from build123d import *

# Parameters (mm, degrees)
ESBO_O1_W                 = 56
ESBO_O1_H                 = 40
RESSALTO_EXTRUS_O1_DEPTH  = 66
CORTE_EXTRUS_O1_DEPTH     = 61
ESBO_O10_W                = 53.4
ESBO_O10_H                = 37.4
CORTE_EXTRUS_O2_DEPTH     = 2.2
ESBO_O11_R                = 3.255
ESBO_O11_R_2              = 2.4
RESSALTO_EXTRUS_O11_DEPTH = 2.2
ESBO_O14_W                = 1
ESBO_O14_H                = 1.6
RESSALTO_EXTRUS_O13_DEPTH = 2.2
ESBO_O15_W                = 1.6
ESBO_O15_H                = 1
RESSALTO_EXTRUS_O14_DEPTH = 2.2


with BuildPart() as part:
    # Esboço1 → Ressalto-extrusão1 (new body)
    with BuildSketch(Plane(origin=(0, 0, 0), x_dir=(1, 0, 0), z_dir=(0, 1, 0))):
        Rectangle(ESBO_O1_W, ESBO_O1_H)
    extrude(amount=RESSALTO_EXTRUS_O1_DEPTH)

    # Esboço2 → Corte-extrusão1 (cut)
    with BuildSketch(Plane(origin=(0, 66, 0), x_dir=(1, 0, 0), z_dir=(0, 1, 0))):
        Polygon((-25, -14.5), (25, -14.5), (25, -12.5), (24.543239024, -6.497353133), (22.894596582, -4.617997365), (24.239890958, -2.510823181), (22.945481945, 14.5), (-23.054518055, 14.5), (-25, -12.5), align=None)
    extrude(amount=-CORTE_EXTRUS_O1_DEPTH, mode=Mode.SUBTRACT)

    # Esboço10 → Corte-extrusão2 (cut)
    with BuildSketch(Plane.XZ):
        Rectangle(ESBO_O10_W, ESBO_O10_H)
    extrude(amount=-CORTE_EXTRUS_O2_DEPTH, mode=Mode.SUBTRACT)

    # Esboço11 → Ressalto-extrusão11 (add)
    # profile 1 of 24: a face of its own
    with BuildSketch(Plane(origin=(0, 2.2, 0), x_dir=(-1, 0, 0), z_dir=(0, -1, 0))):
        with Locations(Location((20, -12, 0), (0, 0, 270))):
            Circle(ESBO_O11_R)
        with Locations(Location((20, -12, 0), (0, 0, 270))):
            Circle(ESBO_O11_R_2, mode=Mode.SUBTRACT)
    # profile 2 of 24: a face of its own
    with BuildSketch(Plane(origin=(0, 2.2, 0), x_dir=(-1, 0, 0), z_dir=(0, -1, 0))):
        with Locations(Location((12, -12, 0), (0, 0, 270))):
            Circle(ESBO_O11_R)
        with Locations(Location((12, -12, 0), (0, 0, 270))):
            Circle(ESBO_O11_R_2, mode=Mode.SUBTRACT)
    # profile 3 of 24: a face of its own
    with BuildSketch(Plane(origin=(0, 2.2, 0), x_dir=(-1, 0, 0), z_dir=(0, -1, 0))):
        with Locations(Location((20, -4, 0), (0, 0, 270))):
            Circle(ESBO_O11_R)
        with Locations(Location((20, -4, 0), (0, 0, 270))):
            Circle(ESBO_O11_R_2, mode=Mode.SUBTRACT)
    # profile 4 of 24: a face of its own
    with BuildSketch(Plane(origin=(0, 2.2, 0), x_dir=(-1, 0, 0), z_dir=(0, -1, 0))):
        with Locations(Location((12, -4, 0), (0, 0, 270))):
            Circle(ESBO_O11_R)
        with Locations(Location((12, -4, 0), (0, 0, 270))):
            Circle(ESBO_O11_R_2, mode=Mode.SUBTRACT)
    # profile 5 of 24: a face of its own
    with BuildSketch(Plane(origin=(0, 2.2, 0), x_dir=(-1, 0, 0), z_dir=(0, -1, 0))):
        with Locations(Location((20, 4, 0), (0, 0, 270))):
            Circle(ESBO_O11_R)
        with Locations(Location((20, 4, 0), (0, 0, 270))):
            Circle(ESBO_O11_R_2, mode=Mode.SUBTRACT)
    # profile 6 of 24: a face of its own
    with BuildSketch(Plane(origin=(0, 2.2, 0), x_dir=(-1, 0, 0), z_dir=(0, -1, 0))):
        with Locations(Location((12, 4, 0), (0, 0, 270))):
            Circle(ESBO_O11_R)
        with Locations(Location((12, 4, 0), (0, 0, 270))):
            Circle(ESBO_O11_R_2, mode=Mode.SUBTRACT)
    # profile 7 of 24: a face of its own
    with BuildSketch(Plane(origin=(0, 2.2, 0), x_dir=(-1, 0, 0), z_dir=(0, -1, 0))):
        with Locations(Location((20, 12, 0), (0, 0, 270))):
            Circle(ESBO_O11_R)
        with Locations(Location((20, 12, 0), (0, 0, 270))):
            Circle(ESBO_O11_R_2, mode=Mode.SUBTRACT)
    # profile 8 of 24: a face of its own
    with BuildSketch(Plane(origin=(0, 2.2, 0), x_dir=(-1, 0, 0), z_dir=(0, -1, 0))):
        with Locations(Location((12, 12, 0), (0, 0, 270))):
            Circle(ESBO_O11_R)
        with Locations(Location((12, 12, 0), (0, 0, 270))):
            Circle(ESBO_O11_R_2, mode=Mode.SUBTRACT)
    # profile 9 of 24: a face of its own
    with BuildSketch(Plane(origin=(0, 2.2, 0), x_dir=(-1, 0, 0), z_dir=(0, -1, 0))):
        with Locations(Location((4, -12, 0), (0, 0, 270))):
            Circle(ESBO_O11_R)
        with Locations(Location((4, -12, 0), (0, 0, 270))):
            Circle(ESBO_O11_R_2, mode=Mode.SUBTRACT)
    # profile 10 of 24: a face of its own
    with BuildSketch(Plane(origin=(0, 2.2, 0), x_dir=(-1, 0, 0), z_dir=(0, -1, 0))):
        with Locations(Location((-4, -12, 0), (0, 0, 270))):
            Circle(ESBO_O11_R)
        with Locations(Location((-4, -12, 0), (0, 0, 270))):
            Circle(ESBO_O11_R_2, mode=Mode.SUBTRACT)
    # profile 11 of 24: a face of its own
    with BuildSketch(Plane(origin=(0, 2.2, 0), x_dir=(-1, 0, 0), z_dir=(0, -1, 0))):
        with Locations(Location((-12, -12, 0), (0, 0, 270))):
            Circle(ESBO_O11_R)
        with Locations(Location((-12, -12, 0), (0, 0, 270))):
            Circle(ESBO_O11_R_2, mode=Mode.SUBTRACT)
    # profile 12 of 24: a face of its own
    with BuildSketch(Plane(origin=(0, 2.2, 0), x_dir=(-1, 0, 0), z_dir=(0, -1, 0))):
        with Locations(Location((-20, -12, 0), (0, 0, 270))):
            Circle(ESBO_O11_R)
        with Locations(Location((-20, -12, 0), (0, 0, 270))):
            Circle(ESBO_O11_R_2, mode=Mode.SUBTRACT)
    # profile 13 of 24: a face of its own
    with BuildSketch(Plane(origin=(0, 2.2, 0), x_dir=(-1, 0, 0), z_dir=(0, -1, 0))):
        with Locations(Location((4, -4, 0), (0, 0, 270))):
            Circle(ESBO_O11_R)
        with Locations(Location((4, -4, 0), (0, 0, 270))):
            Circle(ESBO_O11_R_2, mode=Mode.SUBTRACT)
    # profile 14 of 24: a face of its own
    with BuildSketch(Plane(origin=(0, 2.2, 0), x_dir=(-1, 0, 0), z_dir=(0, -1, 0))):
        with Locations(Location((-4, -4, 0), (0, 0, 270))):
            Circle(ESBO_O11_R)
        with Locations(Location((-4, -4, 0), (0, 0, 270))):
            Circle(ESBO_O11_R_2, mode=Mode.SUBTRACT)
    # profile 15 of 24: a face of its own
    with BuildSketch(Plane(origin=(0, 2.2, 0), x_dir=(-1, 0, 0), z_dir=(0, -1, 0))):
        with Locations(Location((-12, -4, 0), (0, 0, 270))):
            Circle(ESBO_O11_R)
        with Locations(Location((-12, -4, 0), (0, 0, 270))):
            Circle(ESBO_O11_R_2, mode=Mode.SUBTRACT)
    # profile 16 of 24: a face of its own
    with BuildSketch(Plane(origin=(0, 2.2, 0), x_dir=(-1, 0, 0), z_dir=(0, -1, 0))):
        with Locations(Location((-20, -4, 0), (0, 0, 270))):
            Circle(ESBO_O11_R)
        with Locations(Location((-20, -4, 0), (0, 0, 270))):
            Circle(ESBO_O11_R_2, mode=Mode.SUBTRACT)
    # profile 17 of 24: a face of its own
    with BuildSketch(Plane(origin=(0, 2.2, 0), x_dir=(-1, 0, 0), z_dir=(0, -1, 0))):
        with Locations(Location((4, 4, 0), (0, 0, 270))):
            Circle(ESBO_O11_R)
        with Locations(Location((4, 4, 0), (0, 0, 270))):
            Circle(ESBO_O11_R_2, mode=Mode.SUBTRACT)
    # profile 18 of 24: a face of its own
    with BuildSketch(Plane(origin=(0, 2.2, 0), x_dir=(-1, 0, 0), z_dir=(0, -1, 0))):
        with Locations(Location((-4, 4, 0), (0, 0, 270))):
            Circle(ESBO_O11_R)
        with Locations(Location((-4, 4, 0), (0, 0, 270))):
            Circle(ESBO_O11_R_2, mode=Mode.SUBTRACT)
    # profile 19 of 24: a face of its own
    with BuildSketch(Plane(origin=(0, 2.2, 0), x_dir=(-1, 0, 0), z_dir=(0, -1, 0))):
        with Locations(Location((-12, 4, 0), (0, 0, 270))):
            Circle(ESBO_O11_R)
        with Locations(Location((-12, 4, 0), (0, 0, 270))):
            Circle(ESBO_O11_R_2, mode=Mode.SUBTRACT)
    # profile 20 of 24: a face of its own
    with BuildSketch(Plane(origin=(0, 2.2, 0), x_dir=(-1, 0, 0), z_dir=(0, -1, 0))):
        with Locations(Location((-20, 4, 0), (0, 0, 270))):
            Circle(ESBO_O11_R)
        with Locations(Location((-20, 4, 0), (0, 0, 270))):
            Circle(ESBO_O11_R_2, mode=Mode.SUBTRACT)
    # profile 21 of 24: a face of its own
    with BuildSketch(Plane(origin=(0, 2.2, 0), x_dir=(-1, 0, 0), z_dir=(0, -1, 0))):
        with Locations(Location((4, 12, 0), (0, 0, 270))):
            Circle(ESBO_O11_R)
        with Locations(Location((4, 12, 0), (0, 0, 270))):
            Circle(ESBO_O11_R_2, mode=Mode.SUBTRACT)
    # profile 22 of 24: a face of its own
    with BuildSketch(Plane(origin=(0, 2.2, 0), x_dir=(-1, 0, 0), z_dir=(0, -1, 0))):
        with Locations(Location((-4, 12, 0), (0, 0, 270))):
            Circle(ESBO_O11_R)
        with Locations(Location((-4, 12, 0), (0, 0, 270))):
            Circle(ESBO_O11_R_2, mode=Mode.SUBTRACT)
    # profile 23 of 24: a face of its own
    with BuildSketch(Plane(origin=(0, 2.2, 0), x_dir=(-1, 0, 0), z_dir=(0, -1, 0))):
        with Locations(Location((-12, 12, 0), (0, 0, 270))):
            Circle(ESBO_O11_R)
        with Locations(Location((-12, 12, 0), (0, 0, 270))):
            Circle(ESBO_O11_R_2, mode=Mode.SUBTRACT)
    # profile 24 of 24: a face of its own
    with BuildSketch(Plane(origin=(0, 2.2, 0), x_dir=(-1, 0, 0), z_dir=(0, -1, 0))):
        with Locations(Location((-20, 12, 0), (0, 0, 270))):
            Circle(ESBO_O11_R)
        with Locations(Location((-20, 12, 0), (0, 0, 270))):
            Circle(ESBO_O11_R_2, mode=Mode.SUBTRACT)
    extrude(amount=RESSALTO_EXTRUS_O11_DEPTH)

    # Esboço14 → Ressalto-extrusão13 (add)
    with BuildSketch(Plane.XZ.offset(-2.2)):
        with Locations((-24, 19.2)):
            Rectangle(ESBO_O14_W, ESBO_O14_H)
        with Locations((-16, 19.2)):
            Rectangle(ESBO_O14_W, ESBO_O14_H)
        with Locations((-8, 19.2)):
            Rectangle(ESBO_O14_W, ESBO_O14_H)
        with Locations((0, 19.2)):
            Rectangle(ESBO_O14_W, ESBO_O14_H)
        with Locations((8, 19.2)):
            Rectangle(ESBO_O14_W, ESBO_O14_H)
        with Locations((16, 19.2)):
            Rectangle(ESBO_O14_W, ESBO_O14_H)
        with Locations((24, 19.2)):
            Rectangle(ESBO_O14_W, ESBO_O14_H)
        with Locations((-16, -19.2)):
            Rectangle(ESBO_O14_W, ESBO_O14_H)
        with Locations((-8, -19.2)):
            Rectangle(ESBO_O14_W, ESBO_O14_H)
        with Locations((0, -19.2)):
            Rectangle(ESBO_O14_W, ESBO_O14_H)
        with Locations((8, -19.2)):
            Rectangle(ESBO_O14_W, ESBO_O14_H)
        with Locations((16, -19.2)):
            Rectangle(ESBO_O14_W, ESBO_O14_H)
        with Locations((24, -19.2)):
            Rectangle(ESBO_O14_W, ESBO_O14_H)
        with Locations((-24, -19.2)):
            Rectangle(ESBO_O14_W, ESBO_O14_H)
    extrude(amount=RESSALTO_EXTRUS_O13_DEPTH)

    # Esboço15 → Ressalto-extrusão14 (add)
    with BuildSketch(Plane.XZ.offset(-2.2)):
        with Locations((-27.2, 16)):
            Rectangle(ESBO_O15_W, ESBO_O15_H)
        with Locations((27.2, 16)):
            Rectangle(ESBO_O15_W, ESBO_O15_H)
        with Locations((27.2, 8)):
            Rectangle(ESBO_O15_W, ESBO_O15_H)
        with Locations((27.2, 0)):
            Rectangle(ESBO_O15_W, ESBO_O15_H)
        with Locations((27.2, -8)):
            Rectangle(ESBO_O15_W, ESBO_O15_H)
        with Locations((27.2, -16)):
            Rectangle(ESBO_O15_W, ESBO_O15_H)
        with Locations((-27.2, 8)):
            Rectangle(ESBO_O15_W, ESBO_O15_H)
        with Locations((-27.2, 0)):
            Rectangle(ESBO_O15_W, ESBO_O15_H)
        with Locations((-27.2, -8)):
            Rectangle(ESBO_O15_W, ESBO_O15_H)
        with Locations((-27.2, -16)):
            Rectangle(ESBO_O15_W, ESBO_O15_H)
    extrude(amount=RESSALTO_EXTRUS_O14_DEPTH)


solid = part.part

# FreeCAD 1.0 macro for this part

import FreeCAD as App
import Part
import Sketcher
Q = App.Units.Quantity

doc = App.newDocument("Part")
body = doc.addObject("PartDesign::Body", "Body")

# Sketch on XZ plane
sketch1 = body.newObject("Sketcher::SketchObject", "Sketch")
sketch1.AttachmentSupport = (doc.getObject("XZ_Plane"), [""])
sketch1.MapMode = "FlatFace"
sketch1.addGeometry([
    Part.LineSegment(App.Vector(-28, -20, 0), App.Vector(-28, 20, 0)),
    Part.LineSegment(App.Vector(-28, 20, 0), App.Vector(28, 20, 0)),
    Part.LineSegment(App.Vector(28, 20, 0), App.Vector(28, -20, 0)),
    Part.LineSegment(App.Vector(28, -20, 0), App.Vector(-28, -20, 0)),
], False)
sketch1.addConstraint([
    Sketcher.Constraint("Coincident", 0, 2, 1, 1),
    Sketcher.Constraint("Coincident", 1, 2, 2, 1),
    Sketcher.Constraint("Coincident", 2, 2, 3, 1),
    Sketcher.Constraint("Coincident", 3, 2, 0, 1),
    Sketcher.Constraint("Vertical", 0),
    Sketcher.Constraint("Horizontal", 1),
    Sketcher.Constraint("Vertical", 2),
    Sketcher.Constraint("Horizontal", 3),
    Sketcher.Constraint("Symmetric", 0, 2, 2, 2, -1, 1),
    Sketcher.Constraint("DistanceX", 1, 1, 1, 2, Q("56 mm")),
    Sketcher.Constraint("DistanceY", 0, 1, 0, 2, Q("40 mm")),
])
pad1 = body.newObject("PartDesign::Pad", "Pad")
pad1.Profile = sketch1
pad1.Length = 66
pad1.Reversed = True

# Sketch on XZ plane
sketch2 = body.newObject("Sketcher::SketchObject", "Sketch001")
sketch2.AttachmentSupport = (doc.getObject("XZ_Plane"), [""])
sketch2.MapMode = "FlatFace"
sketch2.AttachmentOffset = App.Placement(App.Vector(0, 0, -66), App.Rotation())
sketch2.addGeometry([
    Part.LineSegment(App.Vector(-25, 14.5, 0), App.Vector(25, 14.5, 0)),  # 0
    Part.LineSegment(App.Vector(25, 14.5, 0), App.Vector(25, 12.5, 0)),  # 1
    Part.LineSegment(App.Vector(25, 12.5, 0), App.Vector(24.5, 6.5, 0)),  # 2
    Part.LineSegment(App.Vector(24.5, 6.5, 0), App.Vector(22.9, 4.6, 0)),  # 3
    Part.LineSegment(App.Vector(22.9, 4.6, 0), App.Vector(24.2, 2.5, 0)),  # 4
    Part.LineSegment(App.Vector(24.2, 2.5, 0), App.Vector(22.9, -14.5, 0)),  # 5
    Part.LineSegment(App.Vector(22.9, -14.5, 0), App.Vector(-23.1, -14.5, 0)),  # 6
    Part.LineSegment(App.Vector(-23.1, -14.5, 0), App.Vector(-25, 12.5, 0)),  # 7
    Part.LineSegment(App.Vector(-25, 12.5, 0), App.Vector(-25, 14.5, 0)),  # 8
], False)
sketch2.addConstraint([
    Sketcher.Constraint("Coincident", 0, 2, 1, 1),
    Sketcher.Constraint("Coincident", 1, 2, 2, 1),
    Sketcher.Constraint("Coincident", 2, 2, 3, 1),
    Sketcher.Constraint("Coincident", 3, 2, 4, 1),
    Sketcher.Constraint("Coincident", 4, 2, 5, 1),
    Sketcher.Constraint("Coincident", 5, 2, 6, 1),
    Sketcher.Constraint("Coincident", 6, 2, 7, 1),
    Sketcher.Constraint("Coincident", 7, 2, 8, 1),
    Sketcher.Constraint("Coincident", 8, 2, 0, 1),
    Sketcher.Constraint("Horizontal", 0),
    Sketcher.Constraint("Vertical", 1),
    Sketcher.Constraint("Horizontal", 6),
    Sketcher.Constraint("Vertical", 8),
    Sketcher.Constraint("Symmetric", 1, 2, 7, 2, -2),
    Sketcher.Constraint("Parallel", 2, 5),
    Sketcher.Constraint("Equal", 3, 4),
    Sketcher.Constraint("DistanceX", 0, 1, 0, 2, Q("50 mm")),
    Sketcher.Constraint("DistanceX", 6, 2, 6, 1, Q("46 mm")),
    Sketcher.Constraint("DistanceY", 1, 2, 1, 1, Q("2 mm")),
    Sketcher.Constraint("DistanceY", 5, 2, 1, 2, Q("27 mm")),
    Sketcher.Constraint("Distance", 3, Q("2.5 mm")),
    Sketcher.Constraint("DistanceY", -1, 1, 0, 2, Q("14.5 mm")),
    Sketcher.Constraint("Distance", 2, Q("6.02 mm")),
    Sketcher.Constraint("Distance", 5, Q("17.06 mm")),
    Sketcher.Constraint("Distance", 7, Q("27.07 mm")),
    Sketcher.Constraint("DistanceX", -1, 1, 2, 2, Q("24.543239 mm")),
])
pocket1 = body.newObject("PartDesign::Pocket", "Pocket")
pocket1.Profile = sketch2
pocket1.Length = 61
pocket1.Reversed = True

# Sketch on XZ plane
sketch3 = body.newObject("Sketcher::SketchObject", "Sketch002")
sketch3.AttachmentSupport = (doc.getObject("XZ_Plane"), [""])
sketch3.MapMode = "FlatFace"
sketch3.addGeometry([
    Part.LineSegment(App.Vector(-27, 19, 0), App.Vector(-27, -19, 0)),
    Part.LineSegment(App.Vector(-27, -19, 0), App.Vector(27, -19, 0)),
    Part.LineSegment(App.Vector(27, -19, 0), App.Vector(27, 19, 0)),
    Part.LineSegment(App.Vector(27, 19, 0), App.Vector(-27, 19, 0)),
], False)
sketch3.addConstraint([
    Sketcher.Constraint("Coincident", 0, 2, 1, 1),
    Sketcher.Constraint("Coincident", 1, 2, 2, 1),
    Sketcher.Constraint("Coincident", 2, 2, 3, 1),
    Sketcher.Constraint("Coincident", 3, 2, 0, 1),
    Sketcher.Constraint("Vertical", 0),
    Sketcher.Constraint("Horizontal", 1),
    Sketcher.Constraint("Vertical", 2),
    Sketcher.Constraint("Horizontal", 3),
    Sketcher.Constraint("Symmetric", 0, 2, 2, 2, -1, 1),
    Sketcher.Constraint("DistanceX", 1, 1, 1, 2, Q("53.4 mm")),
    Sketcher.Constraint("DistanceY", 0, 2, 0, 1, Q("37.4 mm")),
])
pocket2 = body.newObject("PartDesign::Pocket", "Pocket001")
pocket2.Profile = sketch3
pocket2.Length = 2.2

# Sketch on XZ plane
sketch4 = body.newObject("Sketcher::SketchObject", "Sketch003")
sketch4.AttachmentSupport = (doc.getObject("XZ_Plane"), [""])
sketch4.MapMode = "FlatFace"
sketch4.AttachmentOffset = App.Placement(App.Vector(0, 0, -2.2), App.Rotation())
sketch4.addGeometry([
    Part.Circle(App.Vector(-20, 12, 0), App.Vector(0, 0, 1), 3.3),  # 0
    Part.Circle(App.Vector(-20, 12, 0), App.Vector(0, 0, 1), 2.4),  # 1
    Part.Circle(App.Vector(-12, 12, 0), App.Vector(0, 0, 1), 3.3),  # 2
    Part.Circle(App.Vector(-12, 12, 0), App.Vector(0, 0, 1), 2.4),  # 3
    Part.Circle(App.Vector(-20, 4, 0), App.Vector(0, 0, 1), 3.3),  # 4
    Part.Circle(App.Vector(-20, 4, 0), App.Vector(0, 0, 1), 2.4),  # 5
    Part.Circle(App.Vector(-12, 4, 0), App.Vector(0, 0, 1), 3.3),  # 6
    Part.Circle(App.Vector(-12, 4, 0), App.Vector(0, 0, 1), 2.4),  # 7
    Part.Circle(App.Vector(-20, -4, 0), App.Vector(0, 0, 1), 3.3),  # 8
    Part.Circle(App.Vector(-20, -4, 0), App.Vector(0, 0, 1), 2.4),  # 9
    Part.Circle(App.Vector(-12, -4, 0), App.Vector(0, 0, 1), 3.3),  # 10
    Part.Circle(App.Vector(-12, -4, 0), App.Vector(0, 0, 1), 2.4),  # 11
    Part.Circle(App.Vector(-20, -12, 0), App.Vector(0, 0, 1), 3.3),  # 12
    Part.Circle(App.Vector(-20, -12, 0), App.Vector(0, 0, 1), 2.4),  # 13
    Part.Circle(App.Vector(-12, -12, 0), App.Vector(0, 0, 1), 3.3),  # 14
    Part.Circle(App.Vector(-12, -12, 0), App.Vector(0, 0, 1), 2.4),  # 15
    Part.Circle(App.Vector(-4, 12, 0), App.Vector(0, 0, 1), 3.3),  # 16
    Part.Circle(App.Vector(-4, 12, 0), App.Vector(0, 0, 1), 2.4),  # 17
    Part.Circle(App.Vector(4, 12, 0), App.Vector(0, 0, 1), 3.3),  # 18
    Part.Circle(App.Vector(4, 12, 0), App.Vector(0, 0, 1), 2.4),  # 19
    Part.Circle(App.Vector(12, 12, 0), App.Vector(0, 0, 1), 3.3),  # 20
    Part.Circle(App.Vector(12, 12, 0), App.Vector(0, 0, 1), 2.4),  # 21
    Part.Circle(App.Vector(20, 12, 0), App.Vector(0, 0, 1), 3.3),  # 22
    Part.Circle(App.Vector(20, 12, 0), App.Vector(0, 0, 1), 2.4),  # 23
    Part.Circle(App.Vector(-4, 4, 0), App.Vector(0, 0, 1), 3.3),  # 24
    Part.Circle(App.Vector(-4, 4, 0), App.Vector(0, 0, 1), 2.4),  # 25
    Part.Circle(App.Vector(4, 4, 0), App.Vector(0, 0, 1), 3.3),  # 26
    Part.Circle(App.Vector(4, 4, 0), App.Vector(0, 0, 1), 2.4),  # 27
    Part.Circle(App.Vector(12, 4, 0), App.Vector(0, 0, 1), 3.3),  # 28
    Part.Circle(App.Vector(12, 4, 0), App.Vector(0, 0, 1), 2.4),  # 29
    Part.Circle(App.Vector(20, 4, 0), App.Vector(0, 0, 1), 3.3),  # 30
    Part.Circle(App.Vector(20, 4, 0), App.Vector(0, 0, 1), 2.4),  # 31
    Part.Circle(App.Vector(-4, -4, 0), App.Vector(0, 0, 1), 3.3),  # 32
    Part.Circle(App.Vector(-4, -4, 0), App.Vector(0, 0, 1), 2.4),  # 33
    Part.Circle(App.Vector(4, -4, 0), App.Vector(0, 0, 1), 3.3),  # 34
    Part.Circle(App.Vector(4, -4, 0), App.Vector(0, 0, 1), 2.4),  # 35
    Part.Circle(App.Vector(12, -4, 0), App.Vector(0, 0, 1), 3.3),  # 36
    Part.Circle(App.Vector(12, -4, 0), App.Vector(0, 0, 1), 2.4),  # 37
    Part.Circle(App.Vector(20, -4, 0), App.Vector(0, 0, 1), 3.3),  # 38
    Part.Circle(App.Vector(20, -4, 0), App.Vector(0, 0, 1), 2.4),  # 39
    Part.Circle(App.Vector(-4, -12, 0), App.Vector(0, 0, 1), 3.3),  # 40
    Part.Circle(App.Vector(-4, -12, 0), App.Vector(0, 0, 1), 2.4),  # 41
    Part.Circle(App.Vector(4, -12, 0), App.Vector(0, 0, 1), 3.3),  # 42
    Part.Circle(App.Vector(4, -12, 0), App.Vector(0, 0, 1), 2.4),  # 43
    Part.Circle(App.Vector(12, -12, 0), App.Vector(0, 0, 1), 3.3),  # 44
    Part.Circle(App.Vector(12, -12, 0), App.Vector(0, 0, 1), 2.4),  # 45
    Part.Circle(App.Vector(20, -12, 0), App.Vector(0, 0, 1), 3.3),  # 46
    Part.Circle(App.Vector(20, -12, 0), App.Vector(0, 0, 1), 2.4),  # 47
], False)
sketch4.addConstraint([
    Sketcher.Constraint("Coincident", 1, 3, 0, 3),
    Sketcher.Constraint("Coincident", 3, 3, 2, 3),
    Sketcher.Constraint("Coincident", 5, 3, 4, 3),
    Sketcher.Constraint("Coincident", 7, 3, 6, 3),
    Sketcher.Constraint("Coincident", 9, 3, 8, 3),
    Sketcher.Constraint("Coincident", 11, 3, 10, 3),
    Sketcher.Constraint("Coincident", 13, 3, 12, 3),
    Sketcher.Constraint("Coincident", 15, 3, 14, 3),
    Sketcher.Constraint("Coincident", 17, 3, 16, 3),
    Sketcher.Constraint("Coincident", 19, 3, 18, 3),
    Sketcher.Constraint("Coincident", 21, 3, 20, 3),
    Sketcher.Constraint("Coincident", 23, 3, 22, 3),
    Sketcher.Constraint("Coincident", 25, 3, 24, 3),
    Sketcher.Constraint("Coincident", 27, 3, 26, 3),
    Sketcher.Constraint("Coincident", 29, 3, 28, 3),
    Sketcher.Constraint("Coincident", 31, 3, 30, 3),
    Sketcher.Constraint("Coincident", 33, 3, 32, 3),
    Sketcher.Constraint("Coincident", 35, 3, 34, 3),
    Sketcher.Constraint("Coincident", 37, 3, 36, 3),
    Sketcher.Constraint("Coincident", 39, 3, 38, 3),
    Sketcher.Constraint("Coincident", 41, 3, 40, 3),
    Sketcher.Constraint("Coincident", 43, 3, 42, 3),
    Sketcher.Constraint("Coincident", 45, 3, 44, 3),
    Sketcher.Constraint("Coincident", 47, 3, 46, 3),
    Sketcher.Constraint("Equal", 0, 2),
    Sketcher.Constraint("Equal", 1, 3),
    Sketcher.Constraint("Equal", 2, 4),
    Sketcher.Constraint("Equal", 3, 5),
    Sketcher.Constraint("Equal", 4, 6),
    Sketcher.Constraint("Equal", 5, 7),
    Sketcher.Constraint("Equal", 6, 8),
    Sketcher.Constraint("Equal", 7, 9),
    Sketcher.Constraint("Equal", 8, 10),
    Sketcher.Constraint("Equal", 9, 11),
    Sketcher.Constraint("Equal", 10, 12),
    Sketcher.Constraint("Equal", 11, 13),
    Sketcher.Constraint("Equal", 12, 14),
    Sketcher.Constraint("Equal", 13, 15),
    Sketcher.Constraint("Equal", 14, 16),
    Sketcher.Constraint("Equal", 15, 17),
    Sketcher.Constraint("Equal", 16, 18),
    Sketcher.Constraint("Equal", 17, 19),
    Sketcher.Constraint("Equal", 18, 20),
    Sketcher.Constraint("Equal", 19, 21),
    Sketcher.Constraint("Equal", 20, 22),
    Sketcher.Constraint("Equal", 21, 23),
    Sketcher.Constraint("Equal", 22, 24),
    Sketcher.Constraint("Equal", 23, 25),
    Sketcher.Constraint("Equal", 24, 26),
    Sketcher.Constraint("Equal", 25, 27),
    Sketcher.Constraint("Equal", 26, 28),
    Sketcher.Constraint("Equal", 27, 29),
    Sketcher.Constraint("Equal", 28, 30),
    Sketcher.Constraint("Equal", 29, 31),
    Sketcher.Constraint("Equal", 30, 32),
    Sketcher.Constraint("Equal", 31, 33),
    Sketcher.Constraint("Equal", 32, 34),
    Sketcher.Constraint("Equal", 33, 35),
    Sketcher.Constraint("Equal", 34, 36),
    Sketcher.Constraint("Equal", 35, 37),
    Sketcher.Constraint("Equal", 36, 38),
    Sketcher.Constraint("Equal", 37, 39),
    Sketcher.Constraint("Equal", 38, 40),
    Sketcher.Constraint("Equal", 39, 41),
    Sketcher.Constraint("Equal", 40, 42),
    Sketcher.Constraint("Equal", 41, 43),
    Sketcher.Constraint("Equal", 42, 44),
    Sketcher.Constraint("Equal", 43, 45),
    Sketcher.Constraint("Equal", 44, 46),
    Sketcher.Constraint("Equal", 45, 47),
    Sketcher.Constraint("Symmetric", 14, 3, 20, 3, -1, 1),
    Sketcher.Constraint("Symmetric", 12, 3, 22, 3, -1, 1),
    Sketcher.Constraint("Symmetric", 10, 3, 28, 3, -1, 1),
    Sketcher.Constraint("Symmetric", 8, 3, 30, 3, -1, 1),
    Sketcher.Constraint("Symmetric", 26, 3, 32, 3, -1, 1),
    Sketcher.Constraint("Symmetric", 24, 3, 34, 3, -1, 1),
    Sketcher.Constraint("Symmetric", 6, 3, 36, 3, -1, 1),
    Sketcher.Constraint("Symmetric", 4, 3, 38, 3, -1, 1),
    Sketcher.Constraint("Symmetric", 18, 3, 40, 3, -1, 1),
    Sketcher.Constraint("Symmetric", 16, 3, 42, 3, -1, 1),
    Sketcher.Constraint("Symmetric", 2, 3, 44, 3, -1, 1),
    Sketcher.Constraint("Symmetric", 0, 3, 46, 3, -1, 1),
    Sketcher.Constraint("Symmetric", 16, 3, 18, 3, -2),
    Sketcher.Constraint("Symmetric", 2, 3, 20, 3, -2),
    Sketcher.Constraint("Symmetric", 0, 3, 22, 3, -2),
    Sketcher.Constraint("Symmetric", 24, 3, 26, 3, -2),
    Sketcher.Constraint("Symmetric", 6, 3, 28, 3, -2),
    Sketcher.Constraint("Symmetric", 4, 3, 30, 3, -2),
    Sketcher.Constraint("Horizontal", 1, 3, 2, 3),
    Sketcher.Constraint("Horizontal", 5, 3, 6, 3),
    Sketcher.Constraint("Horizontal", 3, 3, 16, 3),
    Sketcher.Constraint("Horizontal", 7, 3, 24, 3),
    Sketcher.Constraint("Vertical", 1, 3, 4, 3),
    Sketcher.Constraint("Vertical", 3, 3, 6, 3),
    Sketcher.Constraint("Vertical", 17, 3, 24, 3),
    Sketcher.Constraint("Diameter", 1, Q("4.8 mm")),
    Sketcher.Constraint("Diameter", 0, Q("6.51 mm")),
    Sketcher.Constraint("DistanceX", 0, 3, -1, 1, Q("20 mm")),
    Sketcher.Constraint("DistanceY", -1, 1, 0, 3, Q("12 mm")),
    Sketcher.Constraint("DistanceX", 2, 3, -1, 1, Q("12 mm")),
    Sketcher.Constraint("DistanceY", -1, 1, 4, 3, Q("4 mm")),
    Sketcher.Constraint("DistanceX", 16, 3, -1, 1, Q("4 mm")),
])
pad2 = body.newObject("PartDesign::Pad", "Pad001")
pad2.Profile = sketch4
pad2.Length = 2.2

# Sketch on XZ plane
sketch5 = body.newObject("Sketcher::SketchObject", "Sketch004")
sketch5.AttachmentSupport = (doc.getObject("XZ_Plane"), [""])
sketch5.MapMode = "FlatFace"
sketch5.AttachmentOffset = App.Placement(App.Vector(0, 0, -2.2), App.Rotation())
sketch5.addGeometry([
    Part.LineSegment(App.Vector(-24.5, 20, 0), App.Vector(-24.5, 18.4, 0)),  # 0
    Part.LineSegment(App.Vector(-24.5, 18.4, 0), App.Vector(-23.5, 18.4, 0)),  # 1
    Part.LineSegment(App.Vector(-23.5, 18.4, 0), App.Vector(-23.5, 20, 0)),  # 2
    Part.LineSegment(App.Vector(-23.5, 20, 0), App.Vector(-24.5, 20, 0)),  # 3
    Part.LineSegment(App.Vector(-16.5, 20, 0), App.Vector(-16.5, 18.4, 0)),  # 4
    Part.LineSegment(App.Vector(-16.5, 18.4, 0), App.Vector(-15.5, 18.4, 0)),  # 5
    Part.LineSegment(App.Vector(-15.5, 18.4, 0), App.Vector(-15.5, 20, 0)),  # 6
    Part.LineSegment(App.Vector(-15.5, 20, 0), App.Vector(-16.5, 20, 0)),  # 7
    Part.LineSegment(App.Vector(-8.5, 20, 0), App.Vector(-8.5, 18.4, 0)),  # 8
    Part.LineSegment(App.Vector(-8.5, 18.4, 0), App.Vector(-7.5, 18.4, 0)),  # 9
    Part.LineSegment(App.Vector(-7.5, 18.4, 0), App.Vector(-7.5, 20, 0)),  # 10
    Part.LineSegment(App.Vector(-7.5, 20, 0), App.Vector(-8.5, 20, 0)),  # 11
    Part.LineSegment(App.Vector(-0.5, 20, 0), App.Vector(-0.5, 18.4, 0)),  # 12
    Part.LineSegment(App.Vector(-0.5, 18.4, 0), App.Vector(0.5, 18.4, 0)),  # 13
    Part.LineSegment(App.Vector(0.5, 18.4, 0), App.Vector(0.5, 20, 0)),  # 14
    Part.LineSegment(App.Vector(0.5, 20, 0), App.Vector(-0.5, 20, 0)),  # 15
    Part.LineSegment(App.Vector(7.5, 20, 0), App.Vector(7.5, 18.4, 0)),  # 16
    Part.LineSegment(App.Vector(7.5, 18.4, 0), App.Vector(8.5, 18.4, 0)),  # 17
    Part.LineSegment(App.Vector(8.5, 18.4, 0), App.Vector(8.5, 20, 0)),  # 18
    Part.LineSegment(App.Vector(8.5, 20, 0), App.Vector(7.5, 20, 0)),  # 19
    Part.LineSegment(App.Vector(15.5, 20, 0), App.Vector(15.5, 18.4, 0)),  # 20
    Part.LineSegment(App.Vector(15.5, 18.4, 0), App.Vector(16.5, 18.4, 0)),  # 21
    Part.LineSegment(App.Vector(16.5, 18.4, 0), App.Vector(16.5, 20, 0)),  # 22
    Part.LineSegment(App.Vector(16.5, 20, 0), App.Vector(15.5, 20, 0)),  # 23
    Part.LineSegment(App.Vector(23.5, 20, 0), App.Vector(23.5, 18.4, 0)),  # 24
    Part.LineSegment(App.Vector(23.5, 18.4, 0), App.Vector(24.5, 18.4, 0)),  # 25
    Part.LineSegment(App.Vector(24.5, 18.4, 0), App.Vector(24.5, 20, 0)),  # 26
    Part.LineSegment(App.Vector(24.5, 20, 0), App.Vector(23.5, 20, 0)),  # 27
    Part.LineSegment(App.Vector(-16.5, -18.4, 0), App.Vector(-16.5, -20, 0)),  # 28
    Part.LineSegment(App.Vector(-16.5, -20, 0), App.Vector(-15.5, -20, 0)),  # 29
    Part.LineSegment(App.Vector(-15.5, -20, 0), App.Vector(-15.5, -18.4, 0)),  # 30
    Part.LineSegment(App.Vector(-15.5, -18.4, 0), App.Vector(-16.5, -18.4, 0)),  # 31
    Part.LineSegment(App.Vector(-8.5, -18.4, 0), App.Vector(-8.5, -20, 0)),  # 32
    Part.LineSegment(App.Vector(-8.5, -20, 0), App.Vector(-7.5, -20, 0)),  # 33
    Part.LineSegment(App.Vector(-7.5, -20, 0), App.Vector(-7.5, -18.4, 0)),  # 34
    Part.LineSegment(App.Vector(-7.5, -18.4, 0), App.Vector(-8.5, -18.4, 0)),  # 35
    Part.LineSegment(App.Vector(-0.5, -18.4, 0), App.Vector(-0.5, -20, 0)),  # 36
    Part.LineSegment(App.Vector(-0.5, -20, 0), App.Vector(0.5, -20, 0)),  # 37
    Part.LineSegment(App.Vector(0.5, -20, 0), App.Vector(0.5, -18.4, 0)),  # 38
    Part.LineSegment(App.Vector(0.5, -18.4, 0), App.Vector(-0.5, -18.4, 0)),  # 39
    Part.LineSegment(App.Vector(7.5, -18.4, 0), App.Vector(7.5, -20, 0)),  # 40
    Part.LineSegment(App.Vector(7.5, -20, 0), App.Vector(8.5, -20, 0)),  # 41
    Part.LineSegment(App.Vector(8.5, -20, 0), App.Vector(8.5, -18.4, 0)),  # 42
    Part.LineSegment(App.Vector(8.5, -18.4, 0), App.Vector(7.5, -18.4, 0)),  # 43
    Part.LineSegment(App.Vector(15.5, -18.4, 0), App.Vector(15.5, -20, 0)),  # 44
    Part.LineSegment(App.Vector(15.5, -20, 0), App.Vector(16.5, -20, 0)),  # 45
    Part.LineSegment(App.Vector(16.5, -20, 0), App.Vector(16.5, -18.4, 0)),  # 46
    Part.LineSegment(App.Vector(16.5, -18.4, 0), App.Vector(15.5, -18.4, 0)),  # 47
    Part.LineSegment(App.Vector(23.5, -18.4, 0), App.Vector(23.5, -20, 0)),  # 48
    Part.LineSegment(App.Vector(23.5, -20, 0), App.Vector(24.5, -20, 0)),  # 49
    Part.LineSegment(App.Vector(24.5, -20, 0), App.Vector(24.5, -18.4, 0)),  # 50
    Part.LineSegment(App.Vector(24.5, -18.4, 0), App.Vector(23.5, -18.4, 0)),  # 51
    Part.LineSegment(App.Vector(-24.5, -18.4, 0), App.Vector(-24.5, -20, 0)),  # 52
    Part.LineSegment(App.Vector(-24.5, -20, 0), App.Vector(-23.5, -20, 0)),  # 53
    Part.LineSegment(App.Vector(-23.5, -20, 0), App.Vector(-23.5, -18.4, 0)),  # 54
    Part.LineSegment(App.Vector(-23.5, -18.4, 0), App.Vector(-24.5, -18.4, 0)),  # 55
], False)
sketch5.addConstraint([
    Sketcher.Constraint("Coincident", 0, 2, 1, 1),
    Sketcher.Constraint("Coincident", 1, 2, 2, 1),
    Sketcher.Constraint("Coincident", 2, 2, 3, 1),
    Sketcher.Constraint("Coincident", 3, 2, 0, 1),
    Sketcher.Constraint("Coincident", 4, 2, 5, 1),
    Sketcher.Constraint("Coincident", 5, 2, 6, 1),
    Sketcher.Constraint("Coincident", 6, 2, 7, 1),
    Sketcher.Constraint("Coincident", 7, 2, 4, 1),
    Sketcher.Constraint("Coincident", 8, 2, 9, 1),
    Sketcher.Constraint("Coincident", 9, 2, 10, 1),
    Sketcher.Constraint("Coincident", 10, 2, 11, 1),
    Sketcher.Constraint("Coincident", 11, 2, 8, 1),
    Sketcher.Constraint("Coincident", 12, 2, 13, 1),
    Sketcher.Constraint("Coincident", 13, 2, 14, 1),
    Sketcher.Constraint("Coincident", 14, 2, 15, 1),
    Sketcher.Constraint("Coincident", 15, 2, 12, 1),
    Sketcher.Constraint("Coincident", 16, 2, 17, 1),
    Sketcher.Constraint("Coincident", 17, 2, 18, 1),
    Sketcher.Constraint("Coincident", 18, 2, 19, 1),
    Sketcher.Constraint("Coincident", 19, 2, 16, 1),
    Sketcher.Constraint("Coincident", 20, 2, 21, 1),
    Sketcher.Constraint("Coincident", 21, 2, 22, 1),
    Sketcher.Constraint("Coincident", 22, 2, 23, 1),
    Sketcher.Constraint("Coincident", 23, 2, 20, 1),
    Sketcher.Constraint("Coincident", 24, 2, 25, 1),
    Sketcher.Constraint("Coincident", 25, 2, 26, 1),
    Sketcher.Constraint("Coincident", 26, 2, 27, 1),
    Sketcher.Constraint("Coincident", 27, 2, 24, 1),
    Sketcher.Constraint("Coincident", 28, 2, 29, 1),
    Sketcher.Constraint("Coincident", 29, 2, 30, 1),
    Sketcher.Constraint("Coincident", 30, 2, 31, 1),
    Sketcher.Constraint("Coincident", 31, 2, 28, 1),
    Sketcher.Constraint("Coincident", 32, 2, 33, 1),
    Sketcher.Constraint("Coincident", 33, 2, 34, 1),
    Sketcher.Constraint("Coincident", 34, 2, 35, 1),
    Sketcher.Constraint("Coincident", 35, 2, 32, 1),
    Sketcher.Constraint("Coincident", 36, 2, 37, 1),
    Sketcher.Constraint("Coincident", 37, 2, 38, 1),
    Sketcher.Constraint("Coincident", 38, 2, 39, 1),
    Sketcher.Constraint("Coincident", 39, 2, 36, 1),
    Sketcher.Constraint("Coincident", 40, 2, 41, 1),
    Sketcher.Constraint("Coincident", 41, 2, 42, 1),
    Sketcher.Constraint("Coincident", 42, 2, 43, 1),
    Sketcher.Constraint("Coincident", 43, 2, 40, 1),
    Sketcher.Constraint("Coincident", 44, 2, 45, 1),
    Sketcher.Constraint("Coincident", 45, 2, 46, 1),
    Sketcher.Constraint("Coincident", 46, 2, 47, 1),
    Sketcher.Constraint("Coincident", 47, 2, 44, 1),
    Sketcher.Constraint("Coincident", 48, 2, 49, 1),
    Sketcher.Constraint("Coincident", 49, 2, 50, 1),
    Sketcher.Constraint("Coincident", 50, 2, 51, 1),
    Sketcher.Constraint("Coincident", 51, 2, 48, 1),
    Sketcher.Constraint("Coincident", 52, 2, 53, 1),
    Sketcher.Constraint("Coincident", 53, 2, 54, 1),
    Sketcher.Constraint("Coincident", 54, 2, 55, 1),
    Sketcher.Constraint("Coincident", 55, 2, 52, 1),
    Sketcher.Constraint("Vertical", 0),
    Sketcher.Constraint("Horizontal", 1),
    Sketcher.Constraint("Vertical", 2),
    Sketcher.Constraint("Horizontal", 3),
    Sketcher.Constraint("Vertical", 4),
    Sketcher.Constraint("Horizontal", 5),
    Sketcher.Constraint("Vertical", 6),
    Sketcher.Constraint("Horizontal", 7),
    Sketcher.Constraint("Vertical", 8),
    Sketcher.Constraint("Horizontal", 9),
    Sketcher.Constraint("Vertical", 10),
    Sketcher.Constraint("Horizontal", 11),
    Sketcher.Constraint("Vertical", 12),
    Sketcher.Constraint("Horizontal", 13),
    Sketcher.Constraint("Vertical", 14),
    Sketcher.Constraint("Horizontal", 15),
    Sketcher.Constraint("Vertical", 16),
    Sketcher.Constraint("Horizontal", 17),
    Sketcher.Constraint("Vertical", 18),
    Sketcher.Constraint("Horizontal", 19),
    Sketcher.Constraint("Vertical", 20),
    Sketcher.Constraint("Horizontal", 21),
    Sketcher.Constraint("Vertical", 22),
    Sketcher.Constraint("Horizontal", 23),
    Sketcher.Constraint("Vertical", 24),
    Sketcher.Constraint("Horizontal", 25),
    Sketcher.Constraint("Vertical", 26),
    Sketcher.Constraint("Horizontal", 27),
    Sketcher.Constraint("Vertical", 28),
    Sketcher.Constraint("Horizontal", 29),
    Sketcher.Constraint("Vertical", 30),
    Sketcher.Constraint("Horizontal", 31),
    Sketcher.Constraint("Vertical", 32),
    Sketcher.Constraint("Horizontal", 33),
    Sketcher.Constraint("Vertical", 34),
    Sketcher.Constraint("Horizontal", 35),
    Sketcher.Constraint("Vertical", 36),
    Sketcher.Constraint("Horizontal", 37),
    Sketcher.Constraint("Vertical", 38),
    Sketcher.Constraint("Horizontal", 39),
    Sketcher.Constraint("Vertical", 40),
    Sketcher.Constraint("Horizontal", 41),
    Sketcher.Constraint("Vertical", 42),
    Sketcher.Constraint("Horizontal", 43),
    Sketcher.Constraint("Vertical", 44),
    Sketcher.Constraint("Horizontal", 45),
    Sketcher.Constraint("Vertical", 46),
    Sketcher.Constraint("Horizontal", 47),
    Sketcher.Constraint("Vertical", 48),
    Sketcher.Constraint("Horizontal", 49),
    Sketcher.Constraint("Vertical", 50),
    Sketcher.Constraint("Horizontal", 51),
    Sketcher.Constraint("Vertical", 52),
    Sketcher.Constraint("Horizontal", 53),
    Sketcher.Constraint("Vertical", 54),
    Sketcher.Constraint("Horizontal", 55),
    Sketcher.Constraint("Symmetric", 22, 2, 28, 2, -1, 1),
    Sketcher.Constraint("Symmetric", 20, 2, 30, 2, -1, 1),
    Sketcher.Constraint("Symmetric", 18, 2, 32, 2, -1, 1),
    Sketcher.Constraint("Symmetric", 16, 2, 34, 2, -1, 1),
    Sketcher.Constraint("Symmetric", 14, 2, 36, 2, -1, 1),
    Sketcher.Constraint("Symmetric", 12, 2, 38, 2, -1, 1),
    Sketcher.Constraint("Symmetric", 10, 2, 40, 2, -1, 1),
    Sketcher.Constraint("Symmetric", 8, 2, 42, 2, -1, 1),
    Sketcher.Constraint("Symmetric", 6, 2, 44, 2, -1, 1),
    Sketcher.Constraint("Symmetric", 4, 2, 46, 2, -1, 1),
    Sketcher.Constraint("Symmetric", 2, 2, 48, 2, -1, 1),
    Sketcher.Constraint("Symmetric", 0, 2, 50, 2, -1, 1),
    Sketcher.Constraint("Symmetric", 26, 2, 52, 2, -1, 1),
    Sketcher.Constraint("Symmetric", 24, 2, 54, 2, -1, 1),
    Sketcher.Constraint("Symmetric", 9, 2, 16, 2, -2),
    Sketcher.Constraint("Symmetric", 11, 2, 18, 2, -2),
    Sketcher.Constraint("Symmetric", 5, 2, 20, 2, -2),
    Sketcher.Constraint("Symmetric", 7, 2, 22, 2, -2),
    Sketcher.Constraint("Symmetric", 1, 2, 24, 2, -2),
    Sketcher.Constraint("Symmetric", 3, 2, 26, 2, -2),
    Sketcher.Constraint("Horizontal", 1, 2, 4, 2),
    Sketcher.Constraint("Horizontal", 3, 2, 6, 2),
    Sketcher.Constraint("Horizontal", 5, 2, 8, 2),
    Sketcher.Constraint("Horizontal", 7, 2, 10, 2),
    Sketcher.Constraint("Horizontal", 9, 2, 12, 2),
    Sketcher.Constraint("Horizontal", 11, 2, 14, 2),
    Sketcher.Constraint("Vertical", 15, 2, 36, 2),
    Sketcher.Constraint("Equal", 3, 5),
    Sketcher.Constraint("Equal", 7, 9),
    Sketcher.Constraint("Equal", 11, 13),
    Sketcher.Constraint("DistanceX", 1, 1, 1, 2, Q("1 mm")),
    Sketcher.Constraint("DistanceY", 0, 2, 0, 1, Q("1.6 mm")),
    Sketcher.Constraint("DistanceY", -1, 1, 2, 2, Q("20 mm")),
    Sketcher.Constraint("DistanceX", 1, 2, 4, 2, Q("7 mm")),
    Sketcher.Constraint("DistanceX", 5, 2, 8, 2, Q("7 mm")),
    Sketcher.Constraint("DistanceX", 9, 2, 12, 2, Q("7 mm")),
])
pad3 = body.newObject("PartDesign::Pad", "Pad002")
pad3.Profile = sketch5
pad3.Length = 2.2

# Sketch on XZ plane
sketch6 = body.newObject("Sketcher::SketchObject", "Sketch005")
sketch6.AttachmentSupport = (doc.getObject("XZ_Plane"), [""])
sketch6.MapMode = "FlatFace"
sketch6.AttachmentOffset = App.Placement(App.Vector(0, 0, -2.2), App.Rotation())
sketch6.addGeometry([
    Part.LineSegment(App.Vector(-28, 16.5, 0), App.Vector(-28, 15.5, 0)),  # 0
    Part.LineSegment(App.Vector(-28, 15.5, 0), App.Vector(-26.4, 15.5, 0)),  # 1
    Part.LineSegment(App.Vector(-26.4, 15.5, 0), App.Vector(-26.4, 16.5, 0)),  # 2
    Part.LineSegment(App.Vector(-26.4, 16.5, 0), App.Vector(-28, 16.5, 0)),  # 3
    Part.LineSegment(App.Vector(26.4, 16.5, 0), App.Vector(26.4, 15.5, 0)),  # 4
    Part.LineSegment(App.Vector(26.4, 15.5, 0), App.Vector(28, 15.5, 0)),  # 5
    Part.LineSegment(App.Vector(28, 15.5, 0), App.Vector(28, 16.5, 0)),  # 6
    Part.LineSegment(App.Vector(28, 16.5, 0), App.Vector(26.4, 16.5, 0)),  # 7
    Part.LineSegment(App.Vector(26.4, 8.5, 0), App.Vector(26.4, 7.5, 0)),  # 8
    Part.LineSegment(App.Vector(26.4, 7.5, 0), App.Vector(28, 7.5, 0)),  # 9
    Part.LineSegment(App.Vector(28, 7.5, 0), App.Vector(28, 8.5, 0)),  # 10
    Part.LineSegment(App.Vector(28, 8.5, 0), App.Vector(26.4, 8.5, 0)),  # 11
    Part.LineSegment(App.Vector(26.4, 0.5, 0), App.Vector(26.4, -0.5, 0)),  # 12
    Part.LineSegment(App.Vector(26.4, -0.5, 0), App.Vector(28, -0.5, 0)),  # 13
    Part.LineSegment(App.Vector(28, -0.5, 0), App.Vector(28, 0.5, 0)),  # 14
    Part.LineSegment(App.Vector(28, 0.5, 0), App.Vector(26.4, 0.5, 0)),  # 15
    Part.LineSegment(App.Vector(26.4, -7.5, 0), App.Vector(26.4, -8.5, 0)),  # 16
    Part.LineSegment(App.Vector(26.4, -8.5, 0), App.Vector(28, -8.5, 0)),  # 17
    Part.LineSegment(App.Vector(28, -8.5, 0), App.Vector(28, -7.5, 0)),  # 18
    Part.LineSegment(App.Vector(28, -7.5, 0), App.Vector(26.4, -7.5, 0)),  # 19
    Part.LineSegment(App.Vector(26.4, -15.5, 0), App.Vector(26.4, -16.5, 0)),  # 20
    Part.LineSegment(App.Vector(26.4, -16.5, 0), App.Vector(28, -16.5, 0)),  # 21
    Part.LineSegment(App.Vector(28, -16.5, 0), App.Vector(28, -15.5, 0)),  # 22
    Part.LineSegment(App.Vector(28, -15.5, 0), App.Vector(26.4, -15.5, 0)),  # 23
    Part.LineSegment(App.Vector(-28, 8.5, 0), App.Vector(-28, 7.5, 0)),  # 24
    Part.LineSegment(App.Vector(-28, 7.5, 0), App.Vector(-26.4, 7.5, 0)),  # 25
    Part.LineSegment(App.Vector(-26.4, 7.5, 0), App.Vector(-26.4, 8.5, 0)),  # 26
    Part.LineSegment(App.Vector(-26.4, 8.5, 0), App.Vector(-28, 8.5, 0)),  # 27
    Part.LineSegment(App.Vector(-28, 0.5, 0), App.Vector(-28, -0.5, 0)),  # 28
    Part.LineSegment(App.Vector(-28, -0.5, 0), App.Vector(-26.4, -0.5, 0)),  # 29
    Part.LineSegment(App.Vector(-26.4, -0.5, 0), App.Vector(-26.4, 0.5, 0)),  # 30
    Part.LineSegment(App.Vector(-26.4, 0.5, 0), App.Vector(-28, 0.5, 0)),  # 31
    Part.LineSegment(App.Vector(-28, -7.5, 0), App.Vector(-28, -8.5, 0)),  # 32
    Part.LineSegment(App.Vector(-28, -8.5, 0), App.Vector(-26.4, -8.5, 0)),  # 33
    Part.LineSegment(App.Vector(-26.4, -8.5, 0), App.Vector(-26.4, -7.5, 0)),  # 34
    Part.LineSegment(App.Vector(-26.4, -7.5, 0), App.Vector(-28, -7.5, 0)),  # 35
    Part.LineSegment(App.Vector(-28, -15.5, 0), App.Vector(-28, -16.5, 0)),  # 36
    Part.LineSegment(App.Vector(-28, -16.5, 0), App.Vector(-26.4, -16.5, 0)),  # 37
    Part.LineSegment(App.Vector(-26.4, -16.5, 0), App.Vector(-26.4, -15.5, 0)),  # 38
    Part.LineSegment(App.Vector(-26.4, -15.5, 0), App.Vector(-28, -15.5, 0)),  # 39
], False)
sketch6.addConstraint([
    Sketcher.Constraint("Coincident", 0, 2, 1, 1),
    Sketcher.Constraint("Coincident", 1, 2, 2, 1),
    Sketcher.Constraint("Coincident", 2, 2, 3, 1),
    Sketcher.Constraint("Coincident", 3, 2, 0, 1),
    Sketcher.Constraint("Coincident", 4, 2, 5, 1),
    Sketcher.Constraint("Coincident", 5, 2, 6, 1),
    Sketcher.Constraint("Coincident", 6, 2, 7, 1),
    Sketcher.Constraint("Coincident", 7, 2, 4, 1),
    Sketcher.Constraint("Coincident", 8, 2, 9, 1),
    Sketcher.Constraint("Coincident", 9, 2, 10, 1),
    Sketcher.Constraint("Coincident", 10, 2, 11, 1),
    Sketcher.Constraint("Coincident", 11, 2, 8, 1),
    Sketcher.Constraint("Coincident", 12, 2, 13, 1),
    Sketcher.Constraint("Coincident", 13, 2, 14, 1),
    Sketcher.Constraint("Coincident", 14, 2, 15, 1),
    Sketcher.Constraint("Coincident", 15, 2, 12, 1),
    Sketcher.Constraint("Coincident", 16, 2, 17, 1),
    Sketcher.Constraint("Coincident", 17, 2, 18, 1),
    Sketcher.Constraint("Coincident", 18, 2, 19, 1),
    Sketcher.Constraint("Coincident", 19, 2, 16, 1),
    Sketcher.Constraint("Coincident", 20, 2, 21, 1),
    Sketcher.Constraint("Coincident", 21, 2, 22, 1),
    Sketcher.Constraint("Coincident", 22, 2, 23, 1),
    Sketcher.Constraint("Coincident", 23, 2, 20, 1),
    Sketcher.Constraint("Coincident", 24, 2, 25, 1),
    Sketcher.Constraint("Coincident", 25, 2, 26, 1),
    Sketcher.Constraint("Coincident", 26, 2, 27, 1),
    Sketcher.Constraint("Coincident", 27, 2, 24, 1),
    Sketcher.Constraint("Coincident", 28, 2, 29, 1),
    Sketcher.Constraint("Coincident", 29, 2, 30, 1),
    Sketcher.Constraint("Coincident", 30, 2, 31, 1),
    Sketcher.Constraint("Coincident", 31, 2, 28, 1),
    Sketcher.Constraint("Coincident", 32, 2, 33, 1),
    Sketcher.Constraint("Coincident", 33, 2, 34, 1),
    Sketcher.Constraint("Coincident", 34, 2, 35, 1),
    Sketcher.Constraint("Coincident", 35, 2, 32, 1),
    Sketcher.Constraint("Coincident", 36, 2, 37, 1),
    Sketcher.Constraint("Coincident", 37, 2, 38, 1),
    Sketcher.Constraint("Coincident", 38, 2, 39, 1),
    Sketcher.Constraint("Coincident", 39, 2, 36, 1),
    Sketcher.Constraint("Vertical", 0),
    Sketcher.Constraint("Horizontal", 1),
    Sketcher.Constraint("Vertical", 2),
    Sketcher.Constraint("Horizontal", 3),
    Sketcher.Constraint("Vertical", 4),
    Sketcher.Constraint("Horizontal", 5),
    Sketcher.Constraint("Vertical", 6),
    Sketcher.Constraint("Horizontal", 7),
    Sketcher.Constraint("Vertical", 8),
    Sketcher.Constraint("Horizontal", 9),
    Sketcher.Constraint("Vertical", 10),
    Sketcher.Constraint("Horizontal", 11),
    Sketcher.Constraint("Vertical", 12),
    Sketcher.Constraint("Horizontal", 13),
    Sketcher.Constraint("Vertical", 14),
    Sketcher.Constraint("Horizontal", 15),
    Sketcher.Constraint("Vertical", 16),
    Sketcher.Constraint("Horizontal", 17),
    Sketcher.Constraint("Vertical", 18),
    Sketcher.Constraint("Horizontal", 19),
    Sketcher.Constraint("Vertical", 20),
    Sketcher.Constraint("Horizontal", 21),
    Sketcher.Constraint("Vertical", 22),
    Sketcher.Constraint("Horizontal", 23),
    Sketcher.Constraint("Vertical", 24),
    Sketcher.Constraint("Horizontal", 25),
    Sketcher.Constraint("Vertical", 26),
    Sketcher.Constraint("Horizontal", 27),
    Sketcher.Constraint("Vertical", 28),
    Sketcher.Constraint("Horizontal", 29),
    Sketcher.Constraint("Vertical", 30),
    Sketcher.Constraint("Horizontal", 31),
    Sketcher.Constraint("Vertical", 32),
    Sketcher.Constraint("Horizontal", 33),
    Sketcher.Constraint("Vertical", 34),
    Sketcher.Constraint("Horizontal", 35),
    Sketcher.Constraint("Vertical", 36),
    Sketcher.Constraint("Horizontal", 37),
    Sketcher.Constraint("Vertical", 38),
    Sketcher.Constraint("Horizontal", 39),
    Sketcher.Constraint("Symmetric", 2, 2, 20, 2, -1, 1),
    Sketcher.Constraint("Symmetric", 0, 2, 22, 2, -1, 1),
    Sketcher.Constraint("Symmetric", 18, 2, 24, 2, -1, 1),
    Sketcher.Constraint("Symmetric", 16, 2, 26, 2, -1, 1),
    Sketcher.Constraint("Symmetric", 14, 2, 28, 2, -1, 1),
    Sketcher.Constraint("Symmetric", 12, 2, 30, 2, -1, 1),
    Sketcher.Constraint("Symmetric", 10, 2, 32, 2, -1, 1),
    Sketcher.Constraint("Symmetric", 8, 2, 34, 2, -1, 1),
    Sketcher.Constraint("Symmetric", 6, 2, 36, 2, -1, 1),
    Sketcher.Constraint("Symmetric", 4, 2, 38, 2, -1, 1),
    Sketcher.Constraint("Symmetric", 1, 2, 4, 2, -2),
    Sketcher.Constraint("Symmetric", 3, 2, 6, 2, -2),
    Sketcher.Constraint("Symmetric", 9, 2, 24, 2, -2),
    Sketcher.Constraint("Symmetric", 11, 2, 26, 2, -2),
    Sketcher.Constraint("Horizontal", 13, 2, 28, 2),
    Sketcher.Constraint("Vertical", 7, 2, 8, 2),
    Sketcher.Constraint("Vertical", 6, 2, 9, 2),
    Sketcher.Constraint("Vertical", 11, 2, 12, 2),
    Sketcher.Constraint("Vertical", 10, 2, 13, 2),
    Sketcher.Constraint("Equal", 6, 8),
    Sketcher.Constraint("Equal", 10, 12),
    Sketcher.Constraint("DistanceY", 0, 2, 0, 1, Q("1 mm")),
    Sketcher.Constraint("DistanceX", 1, 1, 1, 2, Q("1.6 mm")),
    Sketcher.Constraint("DistanceX", 0, 2, -1, 1, Q("28 mm")),
    Sketcher.Constraint("DistanceY", 8, 2, 4, 2, Q("8 mm")),
    Sketcher.Constraint("DistanceY", 12, 2, 8, 2, Q("8 mm")),
])
pad4 = body.newObject("PartDesign::Pad", "Pad003")
pad4.Profile = sketch6
pad4.Length = 2.2

doc.recompute()
